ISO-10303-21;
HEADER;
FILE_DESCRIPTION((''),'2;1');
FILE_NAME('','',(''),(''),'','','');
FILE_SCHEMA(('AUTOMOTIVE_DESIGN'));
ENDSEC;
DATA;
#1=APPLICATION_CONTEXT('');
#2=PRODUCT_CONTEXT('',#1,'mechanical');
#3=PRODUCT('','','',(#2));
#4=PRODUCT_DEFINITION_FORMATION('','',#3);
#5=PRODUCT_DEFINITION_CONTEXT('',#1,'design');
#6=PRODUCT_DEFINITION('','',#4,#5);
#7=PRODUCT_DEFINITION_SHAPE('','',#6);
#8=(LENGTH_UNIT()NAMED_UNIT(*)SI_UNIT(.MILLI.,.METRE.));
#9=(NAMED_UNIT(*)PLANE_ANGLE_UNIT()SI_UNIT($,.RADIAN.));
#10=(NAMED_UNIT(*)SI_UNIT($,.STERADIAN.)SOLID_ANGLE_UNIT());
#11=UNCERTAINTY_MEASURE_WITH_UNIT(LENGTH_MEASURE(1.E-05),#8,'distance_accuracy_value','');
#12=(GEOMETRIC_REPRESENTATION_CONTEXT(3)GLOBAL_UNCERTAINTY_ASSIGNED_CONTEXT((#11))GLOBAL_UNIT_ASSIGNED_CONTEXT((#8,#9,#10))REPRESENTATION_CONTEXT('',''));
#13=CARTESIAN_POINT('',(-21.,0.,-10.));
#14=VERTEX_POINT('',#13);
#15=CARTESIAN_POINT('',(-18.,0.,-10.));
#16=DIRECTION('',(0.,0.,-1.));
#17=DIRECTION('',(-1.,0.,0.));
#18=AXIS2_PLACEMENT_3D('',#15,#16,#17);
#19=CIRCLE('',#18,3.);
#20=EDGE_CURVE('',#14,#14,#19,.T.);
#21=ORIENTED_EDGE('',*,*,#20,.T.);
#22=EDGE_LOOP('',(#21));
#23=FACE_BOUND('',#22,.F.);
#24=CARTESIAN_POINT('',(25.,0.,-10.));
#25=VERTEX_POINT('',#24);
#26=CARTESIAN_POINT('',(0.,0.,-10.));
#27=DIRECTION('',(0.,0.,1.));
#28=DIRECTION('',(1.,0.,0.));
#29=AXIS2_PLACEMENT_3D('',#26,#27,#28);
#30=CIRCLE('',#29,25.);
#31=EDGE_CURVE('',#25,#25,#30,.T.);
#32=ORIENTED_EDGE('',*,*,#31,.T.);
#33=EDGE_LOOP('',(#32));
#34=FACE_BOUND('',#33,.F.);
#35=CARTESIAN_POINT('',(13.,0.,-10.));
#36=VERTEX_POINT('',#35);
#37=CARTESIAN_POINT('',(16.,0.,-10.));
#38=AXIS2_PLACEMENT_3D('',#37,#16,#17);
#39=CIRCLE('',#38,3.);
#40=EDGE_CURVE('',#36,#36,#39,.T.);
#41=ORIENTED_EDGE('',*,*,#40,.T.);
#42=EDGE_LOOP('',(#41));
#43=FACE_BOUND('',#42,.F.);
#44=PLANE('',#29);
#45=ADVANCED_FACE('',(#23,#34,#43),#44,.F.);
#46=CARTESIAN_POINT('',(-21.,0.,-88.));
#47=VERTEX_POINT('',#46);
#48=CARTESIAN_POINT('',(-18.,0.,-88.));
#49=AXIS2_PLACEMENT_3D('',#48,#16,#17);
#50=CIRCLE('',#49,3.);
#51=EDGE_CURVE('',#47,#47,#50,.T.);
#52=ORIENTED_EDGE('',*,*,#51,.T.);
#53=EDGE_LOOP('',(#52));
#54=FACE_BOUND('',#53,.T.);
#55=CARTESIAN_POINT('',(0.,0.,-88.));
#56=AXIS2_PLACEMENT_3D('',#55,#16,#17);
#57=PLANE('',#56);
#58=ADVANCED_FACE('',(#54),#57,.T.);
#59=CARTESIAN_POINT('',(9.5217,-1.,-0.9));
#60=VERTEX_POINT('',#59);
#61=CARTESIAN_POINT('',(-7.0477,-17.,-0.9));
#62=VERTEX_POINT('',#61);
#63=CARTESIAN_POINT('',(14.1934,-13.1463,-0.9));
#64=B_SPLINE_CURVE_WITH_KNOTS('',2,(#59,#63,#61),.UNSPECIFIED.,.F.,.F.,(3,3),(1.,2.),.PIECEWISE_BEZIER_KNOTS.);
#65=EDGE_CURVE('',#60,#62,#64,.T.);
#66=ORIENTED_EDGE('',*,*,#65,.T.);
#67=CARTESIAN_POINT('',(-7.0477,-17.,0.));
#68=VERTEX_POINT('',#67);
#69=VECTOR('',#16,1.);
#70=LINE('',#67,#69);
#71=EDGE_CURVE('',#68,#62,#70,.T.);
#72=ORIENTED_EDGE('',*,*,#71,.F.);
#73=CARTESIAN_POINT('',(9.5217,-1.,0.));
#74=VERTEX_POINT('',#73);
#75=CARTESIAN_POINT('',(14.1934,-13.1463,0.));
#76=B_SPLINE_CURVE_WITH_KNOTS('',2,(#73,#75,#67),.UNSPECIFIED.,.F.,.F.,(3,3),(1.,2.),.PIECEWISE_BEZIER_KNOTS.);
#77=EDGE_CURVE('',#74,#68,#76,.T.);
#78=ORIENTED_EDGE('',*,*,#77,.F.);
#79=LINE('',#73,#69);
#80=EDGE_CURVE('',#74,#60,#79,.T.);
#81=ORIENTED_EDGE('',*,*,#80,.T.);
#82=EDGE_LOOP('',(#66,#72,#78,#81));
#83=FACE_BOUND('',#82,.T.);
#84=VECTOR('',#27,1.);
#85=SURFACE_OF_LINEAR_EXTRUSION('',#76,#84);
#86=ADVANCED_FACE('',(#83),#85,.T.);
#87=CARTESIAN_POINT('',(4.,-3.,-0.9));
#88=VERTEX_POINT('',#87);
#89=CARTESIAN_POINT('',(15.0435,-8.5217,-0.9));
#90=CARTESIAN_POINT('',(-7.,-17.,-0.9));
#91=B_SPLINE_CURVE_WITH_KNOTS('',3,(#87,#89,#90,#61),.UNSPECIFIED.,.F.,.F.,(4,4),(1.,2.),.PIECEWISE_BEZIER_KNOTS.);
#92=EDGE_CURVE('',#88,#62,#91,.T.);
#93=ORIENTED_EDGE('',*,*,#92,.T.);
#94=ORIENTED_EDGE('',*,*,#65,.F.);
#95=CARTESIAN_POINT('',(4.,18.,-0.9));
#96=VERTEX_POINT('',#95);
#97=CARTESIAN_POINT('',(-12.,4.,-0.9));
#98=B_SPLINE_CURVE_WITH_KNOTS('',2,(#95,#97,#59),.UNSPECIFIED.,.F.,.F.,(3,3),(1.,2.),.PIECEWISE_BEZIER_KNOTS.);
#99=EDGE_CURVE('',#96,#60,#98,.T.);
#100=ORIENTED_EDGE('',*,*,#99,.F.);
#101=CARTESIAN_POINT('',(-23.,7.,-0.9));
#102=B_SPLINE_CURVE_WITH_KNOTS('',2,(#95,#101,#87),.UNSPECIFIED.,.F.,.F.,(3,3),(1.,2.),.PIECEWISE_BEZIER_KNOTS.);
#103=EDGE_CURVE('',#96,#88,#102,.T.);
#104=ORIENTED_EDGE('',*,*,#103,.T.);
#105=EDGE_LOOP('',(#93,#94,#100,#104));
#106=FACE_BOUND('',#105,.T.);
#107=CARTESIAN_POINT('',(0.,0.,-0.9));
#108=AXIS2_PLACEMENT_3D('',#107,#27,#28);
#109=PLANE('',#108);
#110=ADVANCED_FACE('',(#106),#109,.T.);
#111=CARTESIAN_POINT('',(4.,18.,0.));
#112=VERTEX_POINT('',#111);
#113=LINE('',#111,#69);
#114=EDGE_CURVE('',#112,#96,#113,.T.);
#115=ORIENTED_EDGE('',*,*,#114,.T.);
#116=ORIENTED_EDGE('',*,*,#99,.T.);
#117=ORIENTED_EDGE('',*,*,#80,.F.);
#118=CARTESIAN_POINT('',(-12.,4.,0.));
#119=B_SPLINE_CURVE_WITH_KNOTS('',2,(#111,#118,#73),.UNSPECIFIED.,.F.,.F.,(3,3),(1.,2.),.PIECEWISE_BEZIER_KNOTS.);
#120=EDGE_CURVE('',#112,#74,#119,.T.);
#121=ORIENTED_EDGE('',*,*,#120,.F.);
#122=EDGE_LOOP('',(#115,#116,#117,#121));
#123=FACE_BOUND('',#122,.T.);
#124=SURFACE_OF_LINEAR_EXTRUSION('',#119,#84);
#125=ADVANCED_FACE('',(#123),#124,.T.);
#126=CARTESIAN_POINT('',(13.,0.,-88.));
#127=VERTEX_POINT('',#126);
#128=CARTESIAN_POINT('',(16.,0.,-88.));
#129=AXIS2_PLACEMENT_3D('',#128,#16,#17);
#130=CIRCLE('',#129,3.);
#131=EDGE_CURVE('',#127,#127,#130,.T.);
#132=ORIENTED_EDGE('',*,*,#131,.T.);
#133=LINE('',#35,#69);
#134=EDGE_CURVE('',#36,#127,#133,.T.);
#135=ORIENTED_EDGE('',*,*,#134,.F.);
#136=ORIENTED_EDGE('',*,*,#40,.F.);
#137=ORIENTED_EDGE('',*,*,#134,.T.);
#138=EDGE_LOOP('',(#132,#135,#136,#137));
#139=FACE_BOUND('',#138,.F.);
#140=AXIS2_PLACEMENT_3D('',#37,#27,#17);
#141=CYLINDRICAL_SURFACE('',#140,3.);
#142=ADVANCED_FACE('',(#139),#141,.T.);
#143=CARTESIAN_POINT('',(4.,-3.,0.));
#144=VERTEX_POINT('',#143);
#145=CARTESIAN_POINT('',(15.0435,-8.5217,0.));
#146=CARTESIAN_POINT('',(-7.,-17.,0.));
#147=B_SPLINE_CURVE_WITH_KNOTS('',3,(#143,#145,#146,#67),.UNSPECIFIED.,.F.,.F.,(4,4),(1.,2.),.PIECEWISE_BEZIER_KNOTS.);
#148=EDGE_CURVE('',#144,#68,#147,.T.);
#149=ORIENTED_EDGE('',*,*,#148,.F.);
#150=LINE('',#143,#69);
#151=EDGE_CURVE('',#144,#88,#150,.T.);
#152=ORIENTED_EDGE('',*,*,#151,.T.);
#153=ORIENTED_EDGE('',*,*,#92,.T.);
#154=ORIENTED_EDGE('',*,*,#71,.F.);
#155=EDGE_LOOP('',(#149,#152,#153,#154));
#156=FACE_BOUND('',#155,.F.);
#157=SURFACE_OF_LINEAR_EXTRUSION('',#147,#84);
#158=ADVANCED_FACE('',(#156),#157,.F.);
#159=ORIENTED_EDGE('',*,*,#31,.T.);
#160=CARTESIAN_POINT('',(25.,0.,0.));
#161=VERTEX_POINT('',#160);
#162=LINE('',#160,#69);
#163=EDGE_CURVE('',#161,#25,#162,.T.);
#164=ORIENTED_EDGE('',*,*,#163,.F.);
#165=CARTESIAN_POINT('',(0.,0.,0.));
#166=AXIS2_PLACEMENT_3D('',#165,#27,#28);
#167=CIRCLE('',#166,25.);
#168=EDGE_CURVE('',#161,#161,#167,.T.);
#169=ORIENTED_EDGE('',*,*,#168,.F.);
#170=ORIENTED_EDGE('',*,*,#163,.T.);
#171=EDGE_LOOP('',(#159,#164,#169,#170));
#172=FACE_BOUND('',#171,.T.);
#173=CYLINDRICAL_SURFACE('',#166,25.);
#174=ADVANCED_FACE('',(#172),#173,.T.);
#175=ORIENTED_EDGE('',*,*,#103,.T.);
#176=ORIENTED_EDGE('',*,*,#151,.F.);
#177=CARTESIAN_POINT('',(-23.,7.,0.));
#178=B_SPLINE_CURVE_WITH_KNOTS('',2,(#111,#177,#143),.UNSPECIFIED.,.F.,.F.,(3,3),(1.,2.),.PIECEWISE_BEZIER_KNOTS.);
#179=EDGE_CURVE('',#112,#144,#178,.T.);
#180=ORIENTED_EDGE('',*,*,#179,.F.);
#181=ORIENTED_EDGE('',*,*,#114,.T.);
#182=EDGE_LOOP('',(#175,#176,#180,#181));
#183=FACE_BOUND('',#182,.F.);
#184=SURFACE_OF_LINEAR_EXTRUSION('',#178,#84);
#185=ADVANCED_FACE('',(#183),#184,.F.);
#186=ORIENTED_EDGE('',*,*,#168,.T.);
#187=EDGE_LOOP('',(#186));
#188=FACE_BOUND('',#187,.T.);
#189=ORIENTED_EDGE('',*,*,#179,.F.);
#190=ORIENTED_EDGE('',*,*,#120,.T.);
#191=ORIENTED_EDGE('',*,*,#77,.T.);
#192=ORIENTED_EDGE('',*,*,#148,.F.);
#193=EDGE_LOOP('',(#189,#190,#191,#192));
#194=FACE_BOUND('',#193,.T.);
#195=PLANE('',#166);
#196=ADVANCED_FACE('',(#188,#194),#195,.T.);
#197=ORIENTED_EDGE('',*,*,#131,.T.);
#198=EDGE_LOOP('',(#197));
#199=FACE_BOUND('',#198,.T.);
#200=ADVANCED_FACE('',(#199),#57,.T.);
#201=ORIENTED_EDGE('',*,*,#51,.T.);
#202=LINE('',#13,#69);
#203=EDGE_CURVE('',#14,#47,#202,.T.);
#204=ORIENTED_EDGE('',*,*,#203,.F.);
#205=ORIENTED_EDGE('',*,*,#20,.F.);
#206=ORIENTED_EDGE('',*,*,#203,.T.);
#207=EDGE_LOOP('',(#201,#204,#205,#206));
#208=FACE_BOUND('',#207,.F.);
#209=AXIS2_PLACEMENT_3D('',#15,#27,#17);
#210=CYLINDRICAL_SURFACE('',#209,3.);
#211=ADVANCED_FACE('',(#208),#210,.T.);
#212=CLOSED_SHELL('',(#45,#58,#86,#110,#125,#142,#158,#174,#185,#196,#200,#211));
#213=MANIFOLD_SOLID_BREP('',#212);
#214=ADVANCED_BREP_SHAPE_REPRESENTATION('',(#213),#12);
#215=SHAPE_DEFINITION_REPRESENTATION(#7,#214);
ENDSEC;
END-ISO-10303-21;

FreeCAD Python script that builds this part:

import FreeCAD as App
import Part
import Sketcher

V = App.Vector
Q = App.Units.Quantity

doc = App.newDocument("Part")
body = doc.addObject("PartDesign::Body", "Body")

# Sketch on XY plane
sketch1 = body.newObject("Sketcher::SketchObject", "Sketch")
sketch1.AttachmentSupport = (doc.getObject("XY_Plane"), [""])
sketch1.MapMode = "FlatFace"
sketch1.addGeometry(Part.Circle(V(0, 0, 0), V(0, 0, 1), 25), False)
sketch1.addConstraint(Sketcher.Constraint("Coincident", 0, 3, -1, 1))
sketch1.addConstraint(Sketcher.Constraint("Diameter", 0, Q("50 mm")))
pad1 = body.newObject("PartDesign::Pad", "Pad")
pad1.Profile = sketch1
pad1.Length = 10
pad1.Reversed = True

# Sketch on XY plane
sketch2 = body.newObject("Sketcher::SketchObject", "Sketch001")
sketch2.AttachmentSupport = (doc.getObject("XY_Plane"), [""])
sketch2.MapMode = "FlatFace"
sketch2.addGeometry(Part.BSplineCurve([V(4, 18, 0), V(-12, 4, 0), V(9.5217, -1, 0)], [3, 3], [1, 2], False, 2, [1, 1, 1], False), False)
sketch2.addGeometry(Part.BSplineCurve([V(4, 18, 0), V(-23, 7, 0), V(4, -3, 0)], [3, 3], [1, 2], False, 2, [1, 1, 1], False), False)
sketch2.addGeometry(Part.BSplineCurve([V(4, -3, 0), V(15.0435, -8.5217, 0), V(-7, -17, 0), V(-7.0477, -17, 0)], [4, 4], [1, 2], False, 3, [1, 1, 1, 1], False), False)
sketch2.addGeometry(Part.BSplineCurve([V(9.5217, -1, 0), V(14.1934, -13.1463, 0), V(-7.0477, -17, 0)], [3, 3], [1, 2], False, 2, [1, 1, 1], False), False)
sketch2.addConstraint(Sketcher.Constraint("Block", 0))
sketch2.addConstraint(Sketcher.Constraint("Block", 1))
sketch2.addConstraint(Sketcher.Constraint("Block", 2))
sketch2.addConstraint(Sketcher.Constraint("Block", 3))
pocket1 = body.newObject("PartDesign::Pocket", "Pocket")
pocket1.Profile = sketch2
pocket1.Length = 0.9

# Sketch on XY plane
sketch3 = body.newObject("Sketcher::SketchObject", "Sketch002")
sketch3.AttachmentSupport = (doc.getObject("XY_Plane"), [""])
sketch3.MapMode = "FlatFace"
sketch3.AttachmentOffset = App.Placement(V(0, 0, -10), App.Rotation())
sketch3.addGeometry(Part.Circle(V(16, 0, 0), V(0, 0, 1), 3), False)
sketch3.addGeometry(Part.Circle(V(-18, 0, 0), V(0, 0, 1), 3), False)
sketch3.addConstraint(Sketcher.Constraint("Equal", 0, 1))
sketch3.addConstraint(Sketcher.Constraint("PointOnObject", 0, 3, -1))
sketch3.addConstraint(Sketcher.Constraint("PointOnObject", 1, 3, -1))
sketch3.addConstraint(Sketcher.Constraint("Diameter", 0, Q("6 mm")))
sketch3.addConstraint(Sketcher.Constraint("DistanceX", -1, 1, 0, 3, Q("16 mm")))
sketch3.addConstraint(Sketcher.Constraint("DistanceX", 1, 3, -1, 1, Q("18 mm")))
pad2 = body.newObject("PartDesign::Pad", "Pad001")
pad2.Profile = sketch3
pad2.Length = 78
pad2.Reversed = True

doc.recompute()
